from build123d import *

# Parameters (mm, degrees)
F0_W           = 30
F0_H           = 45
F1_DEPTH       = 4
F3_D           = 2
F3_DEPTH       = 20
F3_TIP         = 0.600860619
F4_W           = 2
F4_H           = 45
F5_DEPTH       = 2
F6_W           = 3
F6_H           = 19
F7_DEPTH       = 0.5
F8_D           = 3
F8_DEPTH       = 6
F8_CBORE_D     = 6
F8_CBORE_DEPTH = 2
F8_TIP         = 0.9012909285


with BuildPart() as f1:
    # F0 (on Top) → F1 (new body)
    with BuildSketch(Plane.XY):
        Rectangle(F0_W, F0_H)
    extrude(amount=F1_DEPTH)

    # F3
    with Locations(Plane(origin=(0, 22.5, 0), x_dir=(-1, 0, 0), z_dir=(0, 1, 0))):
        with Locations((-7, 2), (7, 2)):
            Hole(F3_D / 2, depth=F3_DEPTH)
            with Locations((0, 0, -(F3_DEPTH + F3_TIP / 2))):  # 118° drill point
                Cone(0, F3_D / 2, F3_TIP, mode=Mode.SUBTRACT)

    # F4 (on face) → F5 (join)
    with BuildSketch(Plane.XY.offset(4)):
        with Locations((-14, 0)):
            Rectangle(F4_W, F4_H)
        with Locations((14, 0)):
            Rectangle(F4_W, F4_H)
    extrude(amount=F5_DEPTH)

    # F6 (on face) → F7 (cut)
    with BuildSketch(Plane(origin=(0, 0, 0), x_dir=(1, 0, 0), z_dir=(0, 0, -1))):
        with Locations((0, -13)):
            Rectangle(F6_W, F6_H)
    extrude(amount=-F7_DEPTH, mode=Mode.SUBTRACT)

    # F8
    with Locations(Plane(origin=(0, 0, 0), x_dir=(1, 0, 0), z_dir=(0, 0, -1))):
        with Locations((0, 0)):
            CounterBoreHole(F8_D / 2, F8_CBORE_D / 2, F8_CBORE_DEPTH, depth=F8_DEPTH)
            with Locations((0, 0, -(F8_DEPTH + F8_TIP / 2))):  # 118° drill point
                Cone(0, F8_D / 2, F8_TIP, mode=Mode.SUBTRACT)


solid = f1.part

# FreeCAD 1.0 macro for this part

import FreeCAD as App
import Part
import Sketcher
from FreeCAD import Vector


def add_polygon(sketch, points):
    """Adds a closed chain of lines whose ends are joined by coincident constraints."""
    first, n = sketch.GeometryCount, len(points)
    for a, b in zip(points, points[1:] + points[:1]):
        sketch.addGeometry(Part.LineSegment(App.Vector(*a, 0), App.Vector(*b, 0)), False)
    for i in range(n):
        sketch.addConstraint(Sketcher.Constraint("Coincident", first + i, 2, first + (i + 1) % n, 1))

doc = App.newDocument("Part")
body = doc.addObject("PartDesign::Body", "Body")

# Sketch on XY plane
sketch1 = body.newObject("Sketcher::SketchObject", "Sketch")
sketch1.AttachmentSupport = (doc.getObject("XY_Plane"), [""])
sketch1.MapMode = "FlatFace"
add_polygon(sketch1, [(-15, 22), (-15, -22), (15, -22), (15, 22)])  # lines 0-3
sketch1.addConstraint([
    Sketcher.Constraint("Vertical", 0),
    Sketcher.Constraint("Horizontal", 1),
    Sketcher.Constraint("Vertical", 2),
    Sketcher.Constraint("Horizontal", 3),
    Sketcher.Constraint("Symmetric", 0, 2, 2, 2, -1, 1),
    Sketcher.Constraint("DistanceX", 1, 1, 1, 2, 30.0),
    Sketcher.Constraint("DistanceY", 0, 2, 0, 1, 45.0),
])
pad1 = body.newObject("PartDesign::Pad", "Pad")
pad1.Profile = sketch1
pad1.Length = 4

# Sketch on XZ plane
sketch2 = body.newObject("Sketcher::SketchObject", "Sketch001")
sketch2.AttachmentSupport = (doc.getObject("XZ_Plane"), [""])
sketch2.MapMode = "FlatFace"
sketch2.AttachmentOffset = App.Placement(Vector(0, 0, -22.5), App.Rotation())
sketch2.addGeometry([
    Part.Circle(Vector(7, 2, 0), Vector(0, 0, 1), 1),
    Part.Circle(Vector(-7, 2, 0), Vector(0, 0, 1), 1),
], False)
sketch2.addConstraint([
    Sketcher.Constraint("Equal", 0, 1),
    Sketcher.Constraint("Symmetric", 0, 3, 1, 3, -2),
    Sketcher.Constraint("Diameter", 0, 2.0),
    Sketcher.Constraint("DistanceX", -1, 1, 0, 3, 7.0),
    Sketcher.Constraint("DistanceY", -1, 1, 0, 3, 2.0),
])
doc.recompute()
hole = body.newObject("PartDesign::Hole", "Hole")
hole.Profile = sketch2
hole.ThreadType = "None"
hole.Diameter = 2
hole.DepthType = "Dimension"
hole.Depth = 20
hole.DrillPoint = "Angled"
hole.DrillPointAngle = 118
hole.Reversed = True

# Sketch on XY plane
sketch3 = body.newObject("Sketcher::SketchObject", "Sketch002")
sketch3.AttachmentSupport = (doc.getObject("XY_Plane"), [""])
sketch3.MapMode = "FlatFace"
sketch3.AttachmentOffset = App.Placement(Vector(0, 0, 4), App.Rotation())
add_polygon(sketch3, [(-15, 22.5), (-15, -22.5), (-13, -22.5), (-13, 22.5)])  # lines 0-3
add_polygon(sketch3, [(13, 22.5), (13, -22.5), (15, -22.5), (15, 22.5)])  # lines 4-7
sketch3.addConstraint([
    Sketcher.Constraint("Vertical", 0),
    Sketcher.Constraint("Horizontal", 1),
    Sketcher.Constraint("Vertical", 2),
    Sketcher.Constraint("Horizontal", 3),
    Sketcher.Constraint("Vertical", 4),
    Sketcher.Constraint("Horizontal", 5),
    Sketcher.Constraint("Vertical", 6),
    Sketcher.Constraint("Horizontal", 7),
    Sketcher.Constraint("Symmetric", 2, 2, 4, 2, -1, 1),
    Sketcher.Constraint("Symmetric", 0, 2, 6, 2, -1, 1),
    Sketcher.Constraint("Horizontal", 1, 2, 4, 2),
    Sketcher.Constraint("DistanceX", 1, 1, 1, 2, 2.0),
    Sketcher.Constraint("DistanceY", 0, 2, 0, 1, 45.0),
    Sketcher.Constraint("DistanceX", 0, 2, -1, 1, 15.0),
])
pad2 = body.newObject("PartDesign::Pad", "Pad001")
pad2.Profile = sketch3
pad2.Length = 2

# Sketch on XY plane
sketch4 = body.newObject("Sketcher::SketchObject", "Sketch003")
sketch4.AttachmentSupport = (doc.getObject("XY_Plane"), [""])
sketch4.MapMode = "FlatFace"
add_polygon(sketch4, [(-1.5, 3.5), (-1.5, 22.5), (1.5, 22.5), (1.5, 3.5)])  # lines 0-3
sketch4.addConstraint([
    Sketcher.Constraint("Vertical", 0),
    Sketcher.Constraint("Horizontal", 1),
    Sketcher.Constraint("Vertical", 2),
    Sketcher.Constraint("Horizontal", 3),
    Sketcher.Constraint("DistanceX", 1, 1, 1, 2, 3.0),
    Sketcher.Constraint("DistanceY", 0, 1, 0, 2, 19.0),
    Sketcher.Constraint("DistanceX", 0, 2, -1, 1, 1.5),
    Sketcher.Constraint("DistanceY", -1, 1, 0, 2, 22.5),
])
pocket1 = body.newObject("PartDesign::Pocket", "Pocket")
pocket1.Profile = sketch4
pocket1.Length = 0.5
pocket1.Reversed = True

# Sketch on XY plane
sketch5 = body.newObject("Sketcher::SketchObject", "Sketch004")
sketch5.AttachmentSupport = (doc.getObject("XY_Plane"), [""])
sketch5.MapMode = "FlatFace"
sketch5.addGeometry(Part.Circle(Vector(0, 0, 0), Vector(0, 0, 1), 1.5), False)
sketch5.addConstraint([
    Sketcher.Constraint("Coincident", 0, 3, -1, 1),
    Sketcher.Constraint("Diameter", 0, 3.0),
])
doc.recompute()
hole2 = body.newObject("PartDesign::Hole", "Hole001")
hole2.Profile = sketch5
hole2.ThreadType = "None"
hole2.Diameter = 3
hole2.DepthType = "Dimension"
hole2.Depth = 6
hole2.DrillPoint = "Angled"
hole2.DrillPointAngle = 118
hole2.HoleCutType = "Counterbore"
hole2.HoleCutDiameter = 6
hole2.HoleCutDepth = 2
hole2.Reversed = True

doc.recompute()
